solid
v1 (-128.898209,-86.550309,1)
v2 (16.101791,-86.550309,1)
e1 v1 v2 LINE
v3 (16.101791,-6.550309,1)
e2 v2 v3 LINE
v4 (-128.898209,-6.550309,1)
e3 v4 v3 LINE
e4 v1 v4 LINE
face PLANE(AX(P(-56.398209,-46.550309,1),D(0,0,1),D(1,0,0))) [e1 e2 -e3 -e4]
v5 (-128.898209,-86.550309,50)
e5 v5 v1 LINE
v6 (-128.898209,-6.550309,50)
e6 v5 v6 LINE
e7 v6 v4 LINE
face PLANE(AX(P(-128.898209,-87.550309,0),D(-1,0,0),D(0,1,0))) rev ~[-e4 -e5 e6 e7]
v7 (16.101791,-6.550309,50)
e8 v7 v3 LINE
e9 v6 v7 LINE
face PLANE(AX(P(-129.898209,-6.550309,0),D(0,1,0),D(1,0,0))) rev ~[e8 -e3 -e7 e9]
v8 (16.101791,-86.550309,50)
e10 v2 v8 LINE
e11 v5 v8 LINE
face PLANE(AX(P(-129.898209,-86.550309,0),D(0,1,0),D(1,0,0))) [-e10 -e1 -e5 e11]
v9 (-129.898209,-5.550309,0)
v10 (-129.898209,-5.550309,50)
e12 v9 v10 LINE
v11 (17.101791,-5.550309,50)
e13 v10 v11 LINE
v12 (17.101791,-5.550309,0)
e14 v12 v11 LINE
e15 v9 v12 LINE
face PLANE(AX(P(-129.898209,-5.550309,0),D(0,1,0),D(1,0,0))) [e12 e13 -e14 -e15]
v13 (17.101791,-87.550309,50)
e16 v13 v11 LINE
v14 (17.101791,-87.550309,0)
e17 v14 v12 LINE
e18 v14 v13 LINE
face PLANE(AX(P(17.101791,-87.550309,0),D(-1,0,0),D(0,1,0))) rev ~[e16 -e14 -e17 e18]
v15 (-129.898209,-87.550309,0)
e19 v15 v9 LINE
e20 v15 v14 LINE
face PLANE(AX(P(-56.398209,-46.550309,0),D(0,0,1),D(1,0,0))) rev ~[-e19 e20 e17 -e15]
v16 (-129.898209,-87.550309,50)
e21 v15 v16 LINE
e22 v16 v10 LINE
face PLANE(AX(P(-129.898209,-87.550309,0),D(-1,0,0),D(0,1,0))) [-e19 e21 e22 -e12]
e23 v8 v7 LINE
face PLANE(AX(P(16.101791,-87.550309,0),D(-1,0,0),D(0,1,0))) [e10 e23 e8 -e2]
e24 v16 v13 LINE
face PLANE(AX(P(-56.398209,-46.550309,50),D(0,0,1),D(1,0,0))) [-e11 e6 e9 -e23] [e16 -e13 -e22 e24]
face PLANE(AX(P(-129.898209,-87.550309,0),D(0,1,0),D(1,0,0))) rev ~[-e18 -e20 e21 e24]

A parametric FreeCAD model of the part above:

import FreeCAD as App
import Part
import Sketcher
from FreeCAD import Vector
Q = App.Units.Quantity


def faces_at(feature, points):
    """Names of the faces that lie closest to the given points."""
    faces = feature.Shape.Faces
    near = lambda p: min(range(len(faces)), key=lambda i: faces[i].distToShape(Part.Vertex(*p))[0])
    return sorted({f"Face{near(p) + 1}" for p in points})


def add_polygon(sketch, points):
    """Adds a closed chain of lines whose ends are joined by coincident constraints."""
    first, n = sketch.GeometryCount, len(points)
    for a, b in zip(points, points[1:] + points[:1]):
        sketch.addGeometry(Part.LineSegment(App.Vector(*a, 0), App.Vector(*b, 0)), False)
    for i in range(n):
        sketch.addConstraint(Sketcher.Constraint("Coincident", first + i, 2, first + (i + 1) % n, 1))

doc = App.newDocument("Part")
body = doc.addObject("PartDesign::Body", "Body")

sketch1 = body.newObject("Sketcher::SketchObject", "Sketch")
sketch1.AttachmentSupport = (doc.getObject("XY_Plane"), [""])
sketch1.MapMode = "FlatFace"
add_polygon(sketch1, [(-169, -6), (-169, -88), (-22, -88), (-22, -6)])
sketch1.addConstraint(Sketcher.Constraint("Vertical", 0))
sketch1.addConstraint(Sketcher.Constraint("Horizontal", 1))
sketch1.addConstraint(Sketcher.Constraint("Vertical", 2))
sketch1.addConstraint(Sketcher.Constraint("Horizontal", 3))
sketch1.addConstraint(Sketcher.Constraint("DistanceX", 1, 1, 1, 2, Q("147 mm")))
sketch1.addConstraint(Sketcher.Constraint("DistanceY", 0, 2, 0, 1, Q("82 mm")))
sketch1.addConstraint(Sketcher.Constraint("DistanceX", 0, 2, -1, 1, Q("168.798209 mm")))
sketch1.addConstraint(Sketcher.Constraint("DistanceY", 0, 2, -1, 1, Q("87.550309 mm")))
pad1 = body.newObject("PartDesign::Pad", "Pad")
pad1.Profile = sketch1
pad1.Length = 50
doc.recompute()

thickness = body.newObject("PartDesign::Thickness", "Thickness")
thickness.Base = (pad1, faces_at(pad1, [(-95.298, -46.55, 50)]))
thickness.Value = 1
thickness.Reversed = True
thickness.Join = "Arc"
body2 = doc.addObject("PartDesign::Body", "Body001")
doc.recompute()

body.Placement = App.Placement(Vector(38.9, 0, 0), App.Rotation(Vector(0, 0, 1), 0))
boolean = body2.newObject("PartDesign::Boolean", "Boolean")
boolean.Type = "Fuse"
boolean.addObjects([body])

doc.recompute()
